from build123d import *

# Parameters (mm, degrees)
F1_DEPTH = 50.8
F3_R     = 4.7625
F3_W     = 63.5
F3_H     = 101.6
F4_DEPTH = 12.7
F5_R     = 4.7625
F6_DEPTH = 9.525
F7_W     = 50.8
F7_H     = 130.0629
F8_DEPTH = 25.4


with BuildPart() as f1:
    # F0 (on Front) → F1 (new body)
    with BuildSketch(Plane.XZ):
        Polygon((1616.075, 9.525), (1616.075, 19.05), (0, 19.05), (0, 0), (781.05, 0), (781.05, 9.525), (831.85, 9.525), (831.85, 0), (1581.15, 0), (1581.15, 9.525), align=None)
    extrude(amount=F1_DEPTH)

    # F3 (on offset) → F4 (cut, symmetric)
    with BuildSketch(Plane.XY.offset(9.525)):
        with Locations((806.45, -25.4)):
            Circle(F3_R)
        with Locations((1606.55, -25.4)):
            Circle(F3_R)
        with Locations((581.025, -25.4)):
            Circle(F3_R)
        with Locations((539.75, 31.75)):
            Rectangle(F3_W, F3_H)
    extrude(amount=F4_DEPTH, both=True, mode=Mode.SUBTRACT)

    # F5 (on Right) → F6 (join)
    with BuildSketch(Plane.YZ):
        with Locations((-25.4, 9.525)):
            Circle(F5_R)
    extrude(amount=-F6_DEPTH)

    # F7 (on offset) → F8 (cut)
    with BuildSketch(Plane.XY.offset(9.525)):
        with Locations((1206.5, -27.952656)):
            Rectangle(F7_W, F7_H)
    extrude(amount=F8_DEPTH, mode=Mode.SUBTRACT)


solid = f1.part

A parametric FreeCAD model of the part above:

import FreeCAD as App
import Part
import Sketcher
from FreeCAD import Vector
Q = App.Units.Quantity


def add_polygon(sketch, points):
    """Adds a closed chain of lines whose ends are joined by coincident constraints."""
    first, n = sketch.GeometryCount, len(points)
    for a, b in zip(points, points[1:] + points[:1]):
        sketch.addGeometry(Part.LineSegment(App.Vector(*a, 0), App.Vector(*b, 0)), False)
    for i in range(n):
        sketch.addConstraint(Sketcher.Constraint("Coincident", first + i, 2, first + (i + 1) % n, 1))

doc = App.newDocument("Part")
body = doc.addObject("PartDesign::Body", "Body")

# Sketch on XZ plane
sketch1 = doc.addObject("Sketcher::SketchObject", "Sketch")
body.addObject(sketch1)
sketch1.AttachmentSupport = (doc.XZ_Plane, [""])
sketch1.MapMode = "FlatFace"
add_polygon(sketch1, [(1616, 10), (1616, 19), (0, 19), (0, 0), (781, 0), (781, 10), (832, 10), (832, 0), (1581, 0), (1581, 10)])  # lines 0-9
sketch1.addConstraint([
    Sketcher.Constraint("Vertical", 0),
    Sketcher.Constraint("Horizontal", 1),
    Sketcher.Constraint("Vertical", 2),
    Sketcher.Constraint("Horizontal", 3),
    Sketcher.Constraint("Vertical", 4),
    Sketcher.Constraint("Horizontal", 5),
    Sketcher.Constraint("Vertical", 6),
    Sketcher.Constraint("Horizontal", 7),
    Sketcher.Constraint("Vertical", 8),
    Sketcher.Constraint("Horizontal", 9),
    Sketcher.Constraint("Coincident", 2, 2, -1, 1),
    Sketcher.Constraint("PointOnObject", 6, 2, -1),
    Sketcher.Constraint("Horizontal", 5, 2, 8, 2),
    Sketcher.Constraint("Equal", 0, 4),
    Sketcher.Constraint("DistanceX", 5, 1, 5, 2, Q("2 in")),
    Sketcher.Constraint("DistanceX", 7, 1, 7, 2, Q("29.5 in")),
    Sketcher.Constraint("DistanceX", 3, 1, 3, 2, Q("30.75 in")),
    Sketcher.Constraint("DistanceY", 2, 2, 2, 1, Q("0.75 in")),
    Sketcher.Constraint("DistanceX", 1, 2, 1, 1, Q("63.625 in")),
])
pad1 = doc.addObject("PartDesign::Pad", "Pad")
body.addObject(pad1)
pad1.Profile = sketch1
pad1.Length = Q("2 in")

# Sketch on XY plane
sketch2 = doc.addObject("Sketcher::SketchObject", "Sketch001")
body.addObject(sketch2)
sketch2.AttachmentSupport = (doc.XY_Plane, [""])
sketch2.MapMode = "FlatFace"
sketch2.AttachmentOffset = App.Placement(Vector(0, 0, 0.375 * 25.4), App.Rotation())
sketch2.addGeometry(Part.Circle(Vector(806.5, -25.4, 0), Vector(0, 0, 1), 4.8), False)  # 0
sketch2.addGeometry(Part.Circle(Vector(1606.5, -25.4, 0), Vector(0, 0, 1), 4.8), False)  # 1
sketch2.addGeometry(Part.Circle(Vector(581, -25.4, 0), Vector(0, 0, 1), 4.8), False)  # 2
add_polygon(sketch2, [(508, 82.5), (508, -19.1), (571.5, -19.1), (571.5, 82.5)])  # lines 3-6
sketch2.addConstraint([
    Sketcher.Constraint("Vertical", 3),
    Sketcher.Constraint("Horizontal", 4),
    Sketcher.Constraint("Vertical", 5),
    Sketcher.Constraint("Horizontal", 6),
    Sketcher.Constraint("Equal", 0, 1),
    Sketcher.Constraint("Equal", 1, 2),
    Sketcher.Constraint("Horizontal", 0, 3, 1, 3),
    Sketcher.Constraint("Horizontal", 1, 3, 2, 3),
    Sketcher.Constraint("DistanceY", 3, 2, 3, 1, Q("4 in")),
    Sketcher.Constraint("Diameter", 0, Q("0.375 in")),
    Sketcher.Constraint("DistanceX", 4, 1, 4, 2, Q("2.5 in")),
    Sketcher.Constraint("DistanceY", 0, 3, -1, 1, Q("1 in")),
    Sketcher.Constraint("DistanceX", -1, 1, 3, 2, Q("20 in")),
    Sketcher.Constraint("DistanceX", 0, 3, 1, 3, Q("31.5 in")),
    Sketcher.Constraint("DistanceX", -1, 1, 0, 3, Q("31.75 in")),
    Sketcher.Constraint("DistanceY", 3, 2, -1, 1, Q("0.75 in")),
    Sketcher.Constraint("DistanceX", -1, 1, 2, 3, Q("22.875 in")),
])
pocket1 = doc.addObject("PartDesign::Pocket", "Pocket")
body.addObject(pocket1)
pocket1.Profile = sketch2
pocket1.Length = Q("1 in")
pocket1.Midplane = True

# Sketch on YZ plane
sketch3 = doc.addObject("Sketcher::SketchObject", "Sketch002")
body.addObject(sketch3)
sketch3.AttachmentSupport = (doc.YZ_Plane, [""])
sketch3.MapMode = "FlatFace"
sketch3.addGeometry(Part.Circle(Vector(-25.4, 9.5, 0), Vector(0, 0, 1), 4.8), False)
sketch3.addConstraint([
    Sketcher.Constraint("Diameter", 0, Q("0.375 in")),
    Sketcher.Constraint("DistanceX", 0, 3, -1, 1, Q("1 in")),
    Sketcher.Constraint("DistanceY", -1, 1, 0, 3, Q("0.375 in")),
])
pad2 = doc.addObject("PartDesign::Pad", "Pad001")
body.addObject(pad2)
pad2.Profile = sketch3
pad2.Length = Q("0.375 in")
pad2.Reversed = True

# Sketch on XY plane
sketch4 = doc.addObject("Sketcher::SketchObject", "Sketch003")
body.addObject(sketch4)
sketch4.AttachmentSupport = (doc.XY_Plane, [""])
sketch4.MapMode = "FlatFace"
sketch4.AttachmentOffset = App.Placement(Vector(0, 0, 0.375 * 25.4), App.Rotation())
add_polygon(sketch4, [(1181, 37), (1181, -93), (1232, -93), (1232, 37)])  # lines 0-3
sketch4.addConstraint([
    Sketcher.Constraint("Vertical", 0),
    Sketcher.Constraint("Horizontal", 1),
    Sketcher.Constraint("Vertical", 2),
    Sketcher.Constraint("Horizontal", 3),
    Sketcher.Constraint("DistanceX", 1, 1, 1, 2, Q("2 in")),
    Sketcher.Constraint("DistanceX", -1, 1, 0, 2, Q("46.5 in")),
    Sketcher.Constraint("DistanceY", 0, 2, 0, 1, Q("130.0629 mm")),
    Sketcher.Constraint("DistanceY", 0, 2, -1, 1, Q("92.984106 mm")),
])
pocket2 = doc.addObject("PartDesign::Pocket", "Pocket001")
body.addObject(pocket2)
pocket2.Profile = sketch4
pocket2.Length = Q("1 in")
pocket2.Reversed = True

doc.recompute()
